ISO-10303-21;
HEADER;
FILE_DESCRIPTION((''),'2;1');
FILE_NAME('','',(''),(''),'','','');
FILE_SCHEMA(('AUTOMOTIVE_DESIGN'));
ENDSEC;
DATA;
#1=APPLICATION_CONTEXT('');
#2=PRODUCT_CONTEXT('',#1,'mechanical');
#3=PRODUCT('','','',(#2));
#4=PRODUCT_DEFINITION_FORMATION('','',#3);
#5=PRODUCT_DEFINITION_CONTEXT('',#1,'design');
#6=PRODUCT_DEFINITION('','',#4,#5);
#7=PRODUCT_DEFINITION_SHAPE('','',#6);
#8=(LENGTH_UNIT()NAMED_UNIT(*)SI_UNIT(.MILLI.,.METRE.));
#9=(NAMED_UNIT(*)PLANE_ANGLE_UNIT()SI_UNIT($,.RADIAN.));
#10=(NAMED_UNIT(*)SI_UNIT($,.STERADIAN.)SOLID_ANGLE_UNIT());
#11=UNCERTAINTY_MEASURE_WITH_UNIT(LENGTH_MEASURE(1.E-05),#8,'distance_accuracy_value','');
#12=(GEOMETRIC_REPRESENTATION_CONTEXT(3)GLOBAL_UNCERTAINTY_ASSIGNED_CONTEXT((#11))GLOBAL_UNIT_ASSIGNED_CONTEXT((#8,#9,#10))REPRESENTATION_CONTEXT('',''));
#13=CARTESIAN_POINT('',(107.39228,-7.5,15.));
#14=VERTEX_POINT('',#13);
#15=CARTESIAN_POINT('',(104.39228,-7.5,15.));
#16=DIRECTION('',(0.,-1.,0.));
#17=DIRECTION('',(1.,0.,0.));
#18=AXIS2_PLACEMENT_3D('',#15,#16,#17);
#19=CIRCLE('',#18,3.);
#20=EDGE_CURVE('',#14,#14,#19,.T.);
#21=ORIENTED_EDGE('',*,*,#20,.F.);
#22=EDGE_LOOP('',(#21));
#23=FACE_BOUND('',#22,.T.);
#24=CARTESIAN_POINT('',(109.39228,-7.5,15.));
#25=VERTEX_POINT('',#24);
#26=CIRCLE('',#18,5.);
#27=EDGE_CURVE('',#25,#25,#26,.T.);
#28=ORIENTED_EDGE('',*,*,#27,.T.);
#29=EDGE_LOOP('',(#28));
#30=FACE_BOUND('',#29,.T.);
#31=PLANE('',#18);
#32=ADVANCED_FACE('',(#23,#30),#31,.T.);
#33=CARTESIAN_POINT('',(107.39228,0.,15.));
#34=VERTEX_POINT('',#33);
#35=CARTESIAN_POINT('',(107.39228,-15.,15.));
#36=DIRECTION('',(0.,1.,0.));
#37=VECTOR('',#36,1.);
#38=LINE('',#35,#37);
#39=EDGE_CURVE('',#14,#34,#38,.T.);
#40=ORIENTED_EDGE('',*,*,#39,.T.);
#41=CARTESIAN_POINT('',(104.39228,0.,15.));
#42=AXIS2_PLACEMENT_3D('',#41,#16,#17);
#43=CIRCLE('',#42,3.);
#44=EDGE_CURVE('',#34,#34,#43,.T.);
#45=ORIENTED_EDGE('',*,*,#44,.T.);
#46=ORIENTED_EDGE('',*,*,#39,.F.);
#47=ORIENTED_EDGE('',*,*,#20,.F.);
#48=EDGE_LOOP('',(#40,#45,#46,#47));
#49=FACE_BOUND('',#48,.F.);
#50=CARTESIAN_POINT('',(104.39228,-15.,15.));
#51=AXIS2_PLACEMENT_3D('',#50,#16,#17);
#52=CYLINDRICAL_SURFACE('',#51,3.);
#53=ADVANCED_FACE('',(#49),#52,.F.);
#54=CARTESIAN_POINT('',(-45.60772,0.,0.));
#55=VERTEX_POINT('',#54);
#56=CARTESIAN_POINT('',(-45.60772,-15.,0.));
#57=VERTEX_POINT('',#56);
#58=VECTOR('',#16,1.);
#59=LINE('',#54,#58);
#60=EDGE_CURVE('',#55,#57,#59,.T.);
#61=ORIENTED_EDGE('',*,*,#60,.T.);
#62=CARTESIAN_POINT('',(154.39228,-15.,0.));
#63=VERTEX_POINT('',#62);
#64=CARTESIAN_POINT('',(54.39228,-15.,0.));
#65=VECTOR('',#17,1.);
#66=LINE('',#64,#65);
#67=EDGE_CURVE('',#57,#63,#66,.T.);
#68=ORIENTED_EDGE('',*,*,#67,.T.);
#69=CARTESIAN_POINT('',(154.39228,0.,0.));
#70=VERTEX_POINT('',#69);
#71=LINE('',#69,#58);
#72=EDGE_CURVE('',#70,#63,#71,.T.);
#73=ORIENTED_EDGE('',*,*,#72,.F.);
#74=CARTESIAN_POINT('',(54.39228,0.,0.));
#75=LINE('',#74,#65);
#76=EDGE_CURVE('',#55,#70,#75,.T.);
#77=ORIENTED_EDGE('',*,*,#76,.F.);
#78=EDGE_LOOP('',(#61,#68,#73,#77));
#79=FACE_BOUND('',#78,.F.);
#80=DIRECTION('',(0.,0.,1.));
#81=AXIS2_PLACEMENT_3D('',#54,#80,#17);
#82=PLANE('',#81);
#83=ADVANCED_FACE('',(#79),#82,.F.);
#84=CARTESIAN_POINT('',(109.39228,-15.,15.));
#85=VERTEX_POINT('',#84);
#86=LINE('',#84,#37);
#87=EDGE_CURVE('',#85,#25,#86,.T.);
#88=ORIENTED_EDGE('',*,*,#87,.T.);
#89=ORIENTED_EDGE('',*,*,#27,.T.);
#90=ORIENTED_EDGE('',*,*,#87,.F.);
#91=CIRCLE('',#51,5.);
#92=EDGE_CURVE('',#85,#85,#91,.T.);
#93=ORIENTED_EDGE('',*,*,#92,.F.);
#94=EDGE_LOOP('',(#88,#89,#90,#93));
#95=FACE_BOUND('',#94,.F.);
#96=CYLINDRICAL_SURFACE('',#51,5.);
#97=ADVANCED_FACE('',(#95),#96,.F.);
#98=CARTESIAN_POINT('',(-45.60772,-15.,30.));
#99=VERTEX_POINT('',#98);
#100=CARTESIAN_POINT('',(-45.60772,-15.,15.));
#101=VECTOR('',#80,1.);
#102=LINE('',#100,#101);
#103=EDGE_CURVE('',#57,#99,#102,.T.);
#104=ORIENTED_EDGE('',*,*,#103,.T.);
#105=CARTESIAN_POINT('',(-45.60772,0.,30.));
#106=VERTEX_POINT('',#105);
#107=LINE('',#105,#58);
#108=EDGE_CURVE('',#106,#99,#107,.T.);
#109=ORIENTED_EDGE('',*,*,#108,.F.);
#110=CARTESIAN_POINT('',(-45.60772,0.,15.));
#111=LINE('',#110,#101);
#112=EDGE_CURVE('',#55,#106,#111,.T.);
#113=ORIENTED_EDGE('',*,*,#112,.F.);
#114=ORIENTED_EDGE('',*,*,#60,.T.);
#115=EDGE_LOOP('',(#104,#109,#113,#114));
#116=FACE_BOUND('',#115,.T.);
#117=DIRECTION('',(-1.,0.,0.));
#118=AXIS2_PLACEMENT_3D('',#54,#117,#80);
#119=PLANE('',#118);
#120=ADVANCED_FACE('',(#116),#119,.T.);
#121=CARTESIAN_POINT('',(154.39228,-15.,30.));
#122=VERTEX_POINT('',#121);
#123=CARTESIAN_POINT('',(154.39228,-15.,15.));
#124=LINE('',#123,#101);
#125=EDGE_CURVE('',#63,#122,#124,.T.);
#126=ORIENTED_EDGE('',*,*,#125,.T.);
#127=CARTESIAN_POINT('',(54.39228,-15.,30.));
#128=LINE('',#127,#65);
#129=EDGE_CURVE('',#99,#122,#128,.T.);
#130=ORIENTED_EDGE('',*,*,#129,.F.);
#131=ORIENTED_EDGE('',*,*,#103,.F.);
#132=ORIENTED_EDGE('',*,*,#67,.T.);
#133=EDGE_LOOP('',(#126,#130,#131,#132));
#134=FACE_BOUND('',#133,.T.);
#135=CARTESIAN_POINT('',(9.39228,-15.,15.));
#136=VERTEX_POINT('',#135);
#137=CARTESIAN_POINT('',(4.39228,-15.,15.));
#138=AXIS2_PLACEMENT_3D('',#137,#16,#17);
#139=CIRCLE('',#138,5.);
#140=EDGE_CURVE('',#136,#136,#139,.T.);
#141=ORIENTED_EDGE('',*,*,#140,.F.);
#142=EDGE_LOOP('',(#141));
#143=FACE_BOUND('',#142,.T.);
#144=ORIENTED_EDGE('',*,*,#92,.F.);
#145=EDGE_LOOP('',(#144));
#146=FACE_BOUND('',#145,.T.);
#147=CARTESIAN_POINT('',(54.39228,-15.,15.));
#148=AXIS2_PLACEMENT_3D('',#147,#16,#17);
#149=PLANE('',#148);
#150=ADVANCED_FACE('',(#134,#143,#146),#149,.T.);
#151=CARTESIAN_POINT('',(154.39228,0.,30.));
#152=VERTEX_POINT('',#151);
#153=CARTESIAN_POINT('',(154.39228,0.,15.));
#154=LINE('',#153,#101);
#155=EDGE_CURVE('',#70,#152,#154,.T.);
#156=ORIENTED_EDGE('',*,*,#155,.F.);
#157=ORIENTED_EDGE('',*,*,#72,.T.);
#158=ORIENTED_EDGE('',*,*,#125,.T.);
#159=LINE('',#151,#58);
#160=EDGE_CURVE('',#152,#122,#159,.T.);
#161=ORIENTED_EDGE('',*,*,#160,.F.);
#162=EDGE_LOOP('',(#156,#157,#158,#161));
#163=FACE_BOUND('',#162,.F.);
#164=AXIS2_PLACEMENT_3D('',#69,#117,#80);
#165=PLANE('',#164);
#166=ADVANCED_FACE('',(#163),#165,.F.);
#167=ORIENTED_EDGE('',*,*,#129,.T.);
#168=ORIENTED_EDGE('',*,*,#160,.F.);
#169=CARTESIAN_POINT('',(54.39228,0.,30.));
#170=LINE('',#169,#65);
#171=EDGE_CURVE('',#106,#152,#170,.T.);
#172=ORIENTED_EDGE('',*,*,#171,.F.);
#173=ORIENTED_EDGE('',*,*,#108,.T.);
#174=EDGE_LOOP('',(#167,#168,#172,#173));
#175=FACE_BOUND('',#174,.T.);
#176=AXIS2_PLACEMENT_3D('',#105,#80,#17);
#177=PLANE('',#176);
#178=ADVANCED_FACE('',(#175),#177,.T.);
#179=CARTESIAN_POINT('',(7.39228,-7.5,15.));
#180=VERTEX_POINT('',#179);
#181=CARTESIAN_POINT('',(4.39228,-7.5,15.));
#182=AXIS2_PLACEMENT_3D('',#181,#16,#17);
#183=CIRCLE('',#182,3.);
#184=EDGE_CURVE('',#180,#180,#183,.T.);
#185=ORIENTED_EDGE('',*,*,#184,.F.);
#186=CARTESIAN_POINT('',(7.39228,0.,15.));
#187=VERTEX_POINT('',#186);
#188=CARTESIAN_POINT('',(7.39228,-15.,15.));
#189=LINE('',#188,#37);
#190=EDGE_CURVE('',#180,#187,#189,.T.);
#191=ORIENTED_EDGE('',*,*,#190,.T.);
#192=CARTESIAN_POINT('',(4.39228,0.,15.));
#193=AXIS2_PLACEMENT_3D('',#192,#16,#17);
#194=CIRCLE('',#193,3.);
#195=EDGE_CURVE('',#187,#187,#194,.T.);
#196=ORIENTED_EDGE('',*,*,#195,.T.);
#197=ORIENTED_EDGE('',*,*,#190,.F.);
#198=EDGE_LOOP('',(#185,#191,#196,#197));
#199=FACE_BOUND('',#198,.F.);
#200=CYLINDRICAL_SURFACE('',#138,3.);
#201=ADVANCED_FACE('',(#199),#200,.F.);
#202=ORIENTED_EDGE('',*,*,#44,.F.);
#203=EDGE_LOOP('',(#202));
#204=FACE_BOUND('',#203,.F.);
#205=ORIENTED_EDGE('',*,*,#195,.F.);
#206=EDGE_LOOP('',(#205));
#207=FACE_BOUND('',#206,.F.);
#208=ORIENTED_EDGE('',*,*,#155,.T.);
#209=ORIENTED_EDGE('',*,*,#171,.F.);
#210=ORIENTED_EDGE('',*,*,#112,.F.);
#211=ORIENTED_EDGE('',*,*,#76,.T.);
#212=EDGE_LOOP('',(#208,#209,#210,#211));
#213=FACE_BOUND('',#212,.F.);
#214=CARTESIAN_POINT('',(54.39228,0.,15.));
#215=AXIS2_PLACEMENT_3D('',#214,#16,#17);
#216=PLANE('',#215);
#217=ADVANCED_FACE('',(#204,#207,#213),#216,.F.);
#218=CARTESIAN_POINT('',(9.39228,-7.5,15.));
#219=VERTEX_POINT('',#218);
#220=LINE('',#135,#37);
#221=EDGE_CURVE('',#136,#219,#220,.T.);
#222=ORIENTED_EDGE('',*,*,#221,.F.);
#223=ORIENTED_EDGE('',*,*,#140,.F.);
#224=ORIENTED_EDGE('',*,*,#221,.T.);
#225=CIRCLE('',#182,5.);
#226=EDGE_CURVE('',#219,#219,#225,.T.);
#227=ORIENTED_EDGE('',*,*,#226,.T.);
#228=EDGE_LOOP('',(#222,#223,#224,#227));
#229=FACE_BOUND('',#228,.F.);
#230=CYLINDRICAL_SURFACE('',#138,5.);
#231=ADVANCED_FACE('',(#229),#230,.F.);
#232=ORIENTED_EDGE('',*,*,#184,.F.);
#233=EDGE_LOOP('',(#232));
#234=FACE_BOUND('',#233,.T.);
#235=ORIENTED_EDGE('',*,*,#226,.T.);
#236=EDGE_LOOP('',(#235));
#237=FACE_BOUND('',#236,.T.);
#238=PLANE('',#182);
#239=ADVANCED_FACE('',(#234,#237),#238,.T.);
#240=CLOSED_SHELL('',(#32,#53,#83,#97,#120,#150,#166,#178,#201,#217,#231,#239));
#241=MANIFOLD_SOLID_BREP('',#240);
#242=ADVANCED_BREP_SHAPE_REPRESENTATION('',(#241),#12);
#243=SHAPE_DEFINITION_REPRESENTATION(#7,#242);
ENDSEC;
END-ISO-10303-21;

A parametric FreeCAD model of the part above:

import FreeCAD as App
import Part
import Sketcher
Q = App.Units.Quantity


def add_polygon(sketch, points):
    """Adds a closed chain of lines whose ends are joined by coincident constraints."""
    first, n = sketch.GeometryCount, len(points)
    for a, b in zip(points, points[1:] + points[:1]):
        sketch.addGeometry(Part.LineSegment(App.Vector(*a, 0), App.Vector(*b, 0)), False)
    for i in range(n):
        sketch.addConstraint(Sketcher.Constraint("Coincident", first + i, 2, first + (i + 1) % n, 1))

doc = App.newDocument("Part")
body = doc.addObject("PartDesign::Body", "Body")

# Sketch on XZ plane
sketch1 = body.newObject("Sketcher::SketchObject", "Sketch")
sketch1.AttachmentSupport = (doc.getObject("XZ_Plane"), [""])
sketch1.MapMode = "FlatFace"
add_polygon(sketch1, [(-46, 30), (-46, 0), (154, 0), (154, 30)])  # lines 0-3
sketch1.addConstraint([
    Sketcher.Constraint("Vertical", 0),
    Sketcher.Constraint("Horizontal", 1),
    Sketcher.Constraint("Vertical", 2),
    Sketcher.Constraint("Horizontal", 3),
    Sketcher.Constraint("PointOnObject", 0, 2, -1),
    Sketcher.Constraint("DistanceX", 1, 1, 1, 2, Q("200 mm")),
    Sketcher.Constraint("DistanceY", 0, 2, 0, 1, Q("30 mm")),
    Sketcher.Constraint("DistanceX", 0, 2, -1, 1, Q("45.60772 mm")),
])
pad1 = body.newObject("PartDesign::Pad", "Pad")
pad1.Profile = sketch1
pad1.Length = 15

# Sketch on XZ plane
sketch2 = body.newObject("Sketcher::SketchObject", "Sketch001")
sketch2.AttachmentSupport = (doc.getObject("XZ_Plane"), [""])
sketch2.MapMode = "FlatFace"
sketch2.AttachmentOffset = App.Placement(App.Vector(0, 0, 15), App.Rotation())
sketch2.addGeometry([
    Part.Circle(App.Vector(4.4, 15, 0), App.Vector(0, 0, 1), 3),
    Part.Circle(App.Vector(104.4, 15, 0), App.Vector(0, 0, 1), 3),
], False)
sketch2.addConstraint([
    Sketcher.Constraint("Equal", 0, 1),
    Sketcher.Constraint("Horizontal", 0, 3, 1, 3),
    Sketcher.Constraint("Diameter", 0, Q("6 mm")),
    Sketcher.Constraint("DistanceY", -1, 1, 0, 3, Q("15 mm")),
    Sketcher.Constraint("DistanceX", 0, 3, 1, 3, Q("100 mm")),
    Sketcher.Constraint("DistanceX", -1, 1, 0, 3, Q("4.39228 mm")),
])
pocket1 = body.newObject("PartDesign::Pocket", "Pocket")
pocket1.Profile = sketch2
pocket1.Length = 25

# Sketch on XZ plane
sketch3 = body.newObject("Sketcher::SketchObject", "Sketch002")
sketch3.AttachmentSupport = (doc.getObject("XZ_Plane"), [""])
sketch3.MapMode = "FlatFace"
sketch3.AttachmentOffset = App.Placement(App.Vector(0, 0, 15), App.Rotation())
sketch3.addGeometry([
    Part.Circle(App.Vector(4.4, 15, 0), App.Vector(0, 0, 1), 5),
    Part.Circle(App.Vector(4.4, 15, 0), App.Vector(0, 0, 1), 3),
    Part.Circle(App.Vector(104.4, 15, 0), App.Vector(0, 0, 1), 5),
    Part.Circle(App.Vector(104.4, 15, 0), App.Vector(0, 0, 1), 3),
], False)
sketch3.addConstraint([
    Sketcher.Constraint("Coincident", 1, 3, 0, 3),
    Sketcher.Constraint("Coincident", 3, 3, 2, 3),
    Sketcher.Constraint("Equal", 0, 2),
    Sketcher.Constraint("Equal", 1, 3),
    Sketcher.Constraint("Horizontal", 1, 3, 2, 3),
    Sketcher.Constraint("Diameter", 0, Q("10 mm")),
    Sketcher.Constraint("Diameter", 1, Q("6 mm")),
    Sketcher.Constraint("DistanceY", -1, 1, 0, 3, Q("15 mm")),
    Sketcher.Constraint("DistanceX", 0, 3, 2, 3, Q("100 mm")),
    Sketcher.Constraint("DistanceX", -1, 1, 0, 3, Q("4.39228 mm")),
])
pocket2 = body.newObject("PartDesign::Pocket", "Pocket001")
pocket2.Profile = sketch3
pocket2.Length = 7.5

doc.recompute()
